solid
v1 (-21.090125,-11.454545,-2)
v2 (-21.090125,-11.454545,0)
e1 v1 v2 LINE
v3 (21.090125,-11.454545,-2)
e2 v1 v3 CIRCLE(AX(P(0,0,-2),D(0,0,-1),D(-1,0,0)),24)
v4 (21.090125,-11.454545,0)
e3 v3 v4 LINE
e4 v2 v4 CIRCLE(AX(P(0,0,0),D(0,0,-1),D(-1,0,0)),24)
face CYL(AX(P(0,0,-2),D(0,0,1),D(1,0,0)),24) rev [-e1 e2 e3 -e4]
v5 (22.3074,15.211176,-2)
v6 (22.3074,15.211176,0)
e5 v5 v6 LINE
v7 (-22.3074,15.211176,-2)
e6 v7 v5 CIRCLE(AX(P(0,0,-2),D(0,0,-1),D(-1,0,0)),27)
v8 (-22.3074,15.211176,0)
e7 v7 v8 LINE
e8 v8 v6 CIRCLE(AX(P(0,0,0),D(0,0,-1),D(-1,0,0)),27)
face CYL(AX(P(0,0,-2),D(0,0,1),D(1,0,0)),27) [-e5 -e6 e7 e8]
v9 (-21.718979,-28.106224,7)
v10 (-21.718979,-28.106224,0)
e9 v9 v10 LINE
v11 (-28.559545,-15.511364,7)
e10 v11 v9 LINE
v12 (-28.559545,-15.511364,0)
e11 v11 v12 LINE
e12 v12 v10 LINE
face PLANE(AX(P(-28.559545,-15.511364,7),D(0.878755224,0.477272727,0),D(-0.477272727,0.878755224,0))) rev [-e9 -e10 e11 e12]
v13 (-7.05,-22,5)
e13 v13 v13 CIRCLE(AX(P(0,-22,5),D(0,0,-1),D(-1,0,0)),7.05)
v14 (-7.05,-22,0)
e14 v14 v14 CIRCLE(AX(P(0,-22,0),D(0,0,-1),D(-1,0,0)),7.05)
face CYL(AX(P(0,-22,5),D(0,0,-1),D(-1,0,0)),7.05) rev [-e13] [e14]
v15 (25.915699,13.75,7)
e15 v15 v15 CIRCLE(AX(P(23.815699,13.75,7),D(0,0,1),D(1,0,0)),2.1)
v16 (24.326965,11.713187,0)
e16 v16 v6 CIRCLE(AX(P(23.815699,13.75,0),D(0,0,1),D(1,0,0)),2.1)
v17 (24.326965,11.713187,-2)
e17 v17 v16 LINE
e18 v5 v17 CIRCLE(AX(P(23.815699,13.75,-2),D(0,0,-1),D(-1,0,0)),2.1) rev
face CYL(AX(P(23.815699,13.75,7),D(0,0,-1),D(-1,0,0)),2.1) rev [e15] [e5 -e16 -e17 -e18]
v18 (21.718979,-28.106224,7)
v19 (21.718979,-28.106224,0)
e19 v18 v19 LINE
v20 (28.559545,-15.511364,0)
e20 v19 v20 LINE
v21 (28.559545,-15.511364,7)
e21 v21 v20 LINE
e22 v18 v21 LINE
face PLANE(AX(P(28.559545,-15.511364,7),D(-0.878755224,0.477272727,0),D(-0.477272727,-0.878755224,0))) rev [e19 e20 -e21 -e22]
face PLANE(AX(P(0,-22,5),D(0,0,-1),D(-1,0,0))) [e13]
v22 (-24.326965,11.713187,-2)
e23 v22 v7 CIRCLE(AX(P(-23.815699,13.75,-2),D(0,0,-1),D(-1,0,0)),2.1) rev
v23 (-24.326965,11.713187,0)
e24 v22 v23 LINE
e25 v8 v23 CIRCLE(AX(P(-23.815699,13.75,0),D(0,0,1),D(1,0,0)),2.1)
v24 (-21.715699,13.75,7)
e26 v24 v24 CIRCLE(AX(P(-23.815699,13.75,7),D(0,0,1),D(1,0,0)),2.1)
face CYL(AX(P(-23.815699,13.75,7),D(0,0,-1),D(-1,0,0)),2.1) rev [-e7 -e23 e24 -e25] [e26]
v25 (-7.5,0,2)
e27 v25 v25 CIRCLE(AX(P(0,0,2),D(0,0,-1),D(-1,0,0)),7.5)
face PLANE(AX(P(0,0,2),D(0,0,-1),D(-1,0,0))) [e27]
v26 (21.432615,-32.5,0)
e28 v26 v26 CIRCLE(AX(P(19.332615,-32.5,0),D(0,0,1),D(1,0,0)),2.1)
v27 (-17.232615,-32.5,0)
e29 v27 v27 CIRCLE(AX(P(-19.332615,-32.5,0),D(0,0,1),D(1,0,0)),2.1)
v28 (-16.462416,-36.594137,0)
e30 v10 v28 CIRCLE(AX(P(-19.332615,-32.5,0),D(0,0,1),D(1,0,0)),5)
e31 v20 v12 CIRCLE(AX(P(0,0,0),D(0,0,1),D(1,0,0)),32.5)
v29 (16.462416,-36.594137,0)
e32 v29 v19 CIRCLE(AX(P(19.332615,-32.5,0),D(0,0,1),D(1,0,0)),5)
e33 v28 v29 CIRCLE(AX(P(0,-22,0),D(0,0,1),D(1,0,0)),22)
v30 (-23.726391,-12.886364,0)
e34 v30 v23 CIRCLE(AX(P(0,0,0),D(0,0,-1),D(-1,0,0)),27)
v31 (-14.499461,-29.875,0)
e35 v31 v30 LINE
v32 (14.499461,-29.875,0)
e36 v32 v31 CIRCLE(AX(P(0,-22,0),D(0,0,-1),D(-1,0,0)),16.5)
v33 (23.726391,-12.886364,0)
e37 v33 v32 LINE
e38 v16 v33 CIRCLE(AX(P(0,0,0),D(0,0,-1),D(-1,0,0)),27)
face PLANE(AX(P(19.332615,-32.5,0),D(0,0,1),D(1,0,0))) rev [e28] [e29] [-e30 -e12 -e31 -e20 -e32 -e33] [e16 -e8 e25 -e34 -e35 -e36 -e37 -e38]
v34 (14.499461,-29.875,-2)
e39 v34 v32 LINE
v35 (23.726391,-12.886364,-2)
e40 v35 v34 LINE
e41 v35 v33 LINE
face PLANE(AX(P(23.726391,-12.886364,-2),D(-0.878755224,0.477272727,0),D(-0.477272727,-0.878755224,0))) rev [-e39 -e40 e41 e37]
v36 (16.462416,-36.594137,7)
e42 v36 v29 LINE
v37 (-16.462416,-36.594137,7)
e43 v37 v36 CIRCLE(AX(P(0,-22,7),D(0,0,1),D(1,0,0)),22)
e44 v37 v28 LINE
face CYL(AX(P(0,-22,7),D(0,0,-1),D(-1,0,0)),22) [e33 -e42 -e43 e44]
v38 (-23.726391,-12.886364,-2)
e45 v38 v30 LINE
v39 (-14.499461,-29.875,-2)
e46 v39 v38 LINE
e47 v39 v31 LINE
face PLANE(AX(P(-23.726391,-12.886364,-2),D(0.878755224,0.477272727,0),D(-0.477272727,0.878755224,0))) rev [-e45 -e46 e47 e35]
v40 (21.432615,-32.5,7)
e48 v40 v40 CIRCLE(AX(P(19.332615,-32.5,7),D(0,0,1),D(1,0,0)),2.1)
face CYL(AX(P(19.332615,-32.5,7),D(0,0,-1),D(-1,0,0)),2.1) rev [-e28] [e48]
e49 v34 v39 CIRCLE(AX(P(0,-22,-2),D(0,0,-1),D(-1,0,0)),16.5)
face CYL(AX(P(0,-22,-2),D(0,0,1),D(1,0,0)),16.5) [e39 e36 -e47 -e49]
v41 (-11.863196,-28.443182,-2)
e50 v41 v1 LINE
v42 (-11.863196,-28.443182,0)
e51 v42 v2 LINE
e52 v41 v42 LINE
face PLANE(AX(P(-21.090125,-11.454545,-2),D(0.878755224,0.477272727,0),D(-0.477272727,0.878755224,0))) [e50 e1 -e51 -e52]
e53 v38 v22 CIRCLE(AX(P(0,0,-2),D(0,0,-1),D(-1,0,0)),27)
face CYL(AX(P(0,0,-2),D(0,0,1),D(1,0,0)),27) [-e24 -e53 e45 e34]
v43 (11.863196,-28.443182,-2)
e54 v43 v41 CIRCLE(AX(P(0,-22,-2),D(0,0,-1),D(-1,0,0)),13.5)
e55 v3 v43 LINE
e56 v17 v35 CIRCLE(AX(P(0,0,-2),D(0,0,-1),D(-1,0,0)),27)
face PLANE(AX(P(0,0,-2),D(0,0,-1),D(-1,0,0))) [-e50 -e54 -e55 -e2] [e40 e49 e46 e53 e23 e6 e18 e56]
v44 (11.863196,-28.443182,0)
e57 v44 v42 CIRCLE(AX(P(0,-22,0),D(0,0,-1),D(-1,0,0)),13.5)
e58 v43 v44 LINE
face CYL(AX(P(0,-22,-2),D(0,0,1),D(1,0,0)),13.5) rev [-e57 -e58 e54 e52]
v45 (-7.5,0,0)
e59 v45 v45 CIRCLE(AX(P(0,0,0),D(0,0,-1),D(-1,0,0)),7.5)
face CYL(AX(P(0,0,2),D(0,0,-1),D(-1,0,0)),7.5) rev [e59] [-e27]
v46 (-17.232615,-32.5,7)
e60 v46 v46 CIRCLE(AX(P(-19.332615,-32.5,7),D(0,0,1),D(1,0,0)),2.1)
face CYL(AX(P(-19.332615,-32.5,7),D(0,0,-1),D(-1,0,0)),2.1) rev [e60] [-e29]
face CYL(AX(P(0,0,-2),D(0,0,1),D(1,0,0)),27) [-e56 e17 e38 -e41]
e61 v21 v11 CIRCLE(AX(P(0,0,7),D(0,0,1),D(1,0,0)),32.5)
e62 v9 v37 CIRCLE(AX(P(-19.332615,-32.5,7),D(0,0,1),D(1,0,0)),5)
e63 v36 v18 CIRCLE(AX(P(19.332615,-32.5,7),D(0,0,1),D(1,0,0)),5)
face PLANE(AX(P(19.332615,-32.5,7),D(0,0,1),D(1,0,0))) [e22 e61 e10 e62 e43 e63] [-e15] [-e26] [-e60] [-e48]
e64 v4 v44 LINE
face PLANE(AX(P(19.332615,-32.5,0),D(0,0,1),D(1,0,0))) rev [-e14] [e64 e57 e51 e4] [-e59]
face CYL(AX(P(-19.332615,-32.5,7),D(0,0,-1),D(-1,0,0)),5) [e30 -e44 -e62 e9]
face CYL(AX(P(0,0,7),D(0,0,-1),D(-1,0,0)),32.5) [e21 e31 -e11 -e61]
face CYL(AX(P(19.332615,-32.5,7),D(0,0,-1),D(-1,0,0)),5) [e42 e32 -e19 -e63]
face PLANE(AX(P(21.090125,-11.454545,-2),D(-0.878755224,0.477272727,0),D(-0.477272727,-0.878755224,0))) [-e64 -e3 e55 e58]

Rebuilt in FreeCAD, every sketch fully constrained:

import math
import FreeCAD as App
import Part
import Sketcher
from FreeCAD import Vector

doc = App.newDocument("Part")
params = doc.addObject("Spreadsheet::Sheet", "Params")
for row, (alias, value) in enumerate([
    ("sketch1_radius", "5 mm"),
    ("sketch1_radius2", "22 mm"),
    ("sketch1_diameter", "4.2 mm"),
    ("sketch1_radius3", "32.5 mm"),
    ("pad1_length", "7 mm"),
    ("sketch2_radius", "27 mm"),
    ("sketch2_radius2", "24 mm"),
    ("sketch2_radius3", "16.5 mm"),
    ("sketch2_radius4", "2.1 mm"),
    ("pad2_length", "2 mm"),
    ("sketch3_diameter", "14.1 mm"),
    ("pocket1_length", "5 mm"),
    ("sketch4_diameter", "15 mm"),
    ("pocket2_length", "2 mm"),
], start=1):
    params.set(f"A{row}", alias)
    params.set(f"B{row}", "=" + value)
    params.setAlias(f"B{row}", alias)

body = doc.addObject("PartDesign::Body", "Body")

sketch1 = body.newObject("Sketcher::SketchObject", "Sketch")
sketch1.AttachmentSupport = (doc.getObject("XY_Plane"), [""])
sketch1.MapMode = "FlatFace"
sketch1.addGeometry([
    Part.LineSegment(Vector(-28.6, -15.5, 0), Vector(-21.7, -28.1, 0)),
    Part.ArcOfCircle(Part.Circle(Vector(-19.3, -32.5, 0), Vector(0, 0, 1), 5), math.radians(119), math.radians(305)),
    Part.ArcOfCircle(Part.Circle(Vector(0, -22, 0), Vector(0, 0, 1), 22), math.radians(-138), math.radians(-42)),
    Part.ArcOfCircle(Part.Circle(Vector(19.3, -32.5, 0), Vector(0, 0, 1), 5), math.radians(-125), math.radians(61)),
    Part.LineSegment(Vector(21.7, -28.1, 0), Vector(28.6, -15.5, 0)),
    Part.ArcOfCircle(Part.Circle(Vector(0, 0, 0), Vector(0, 0, 1), 32.5), math.radians(-29), math.radians(209)),
    Part.Circle(Vector(-19.3, -32.5, 0), Vector(0, 0, 1), 2.1),
    Part.Circle(Vector(19.3, -32.5, 0), Vector(0, 0, 1), 2.1),
    Part.Circle(Vector(-23.8, 13.8, 0), Vector(0, 0, 1), 2.1),
    Part.Circle(Vector(23.8, 13.8, 0), Vector(0, 0, 1), 2.1),
], False)
sketch1.addConstraint([
    Sketcher.Constraint("Coincident", 0, 2, 1, 1),
    Sketcher.Constraint("Coincident", 1, 2, 2, 1),
    Sketcher.Constraint("Coincident", 2, 2, 3, 1),
    Sketcher.Constraint("Coincident", 3, 2, 4, 1),
    Sketcher.Constraint("Tangent", 4, 2, 5, 1),
    Sketcher.Constraint("Tangent", 5, 2, 0, 1),
    Sketcher.Constraint("Coincident", 5, 3, -1, 1),
    Sketcher.Constraint("Coincident", 6, 3, 1, 3),
    Sketcher.Constraint("Coincident", 7, 3, 3, 3),
    Sketcher.Constraint("Equal", 1, 3),
    Sketcher.Constraint("Equal", 6, 7),
    Sketcher.Constraint("Equal", 7, 8),
    Sketcher.Constraint("Equal", 8, 9),
    Sketcher.Constraint("Symmetric", 1, 3, 3, 3, -2),
    Sketcher.Constraint("Symmetric", 8, 3, 9, 3, -2),
    Sketcher.Constraint("PointOnObject", 2, 3, -2),
    Sketcher.Constraint("Horizontal", 0, 2, 3, 2),
    Sketcher.Constraint("Radius", 1, 5.0),
    Sketcher.Constraint("Radius", 2, 22.0),
    Sketcher.Constraint("Diameter", 6, 4.2),
    Sketcher.Constraint("Radius", 5, 32.5),
    Sketcher.Constraint("DistanceY", 2, 3, -1, 1, 22.0),
    Sketcher.Constraint("DistanceY", 1, 3, -1, 1, 32.5),
    Sketcher.Constraint("DistanceY", -1, 1, 8, 3, 13.75),
    Sketcher.Constraint("DistanceX", 8, 3, -1, 1, 23.815699),
    Sketcher.Constraint("DistanceX", 1, 3, 1, 2, 2.870198),
    Sketcher.Constraint("DistanceX", 0, 2, -1, 1, 21.718979),
])
sketch1.setExpression("Constraints[17]", "Params.sketch1_radius")
sketch1.setExpression("Constraints[18]", "Params.sketch1_radius2")
sketch1.setExpression("Constraints[19]", "Params.sketch1_diameter")
sketch1.setExpression("Constraints[20]", "Params.sketch1_radius3")
pad1 = body.newObject("PartDesign::Pad", "Pad")
pad1.Profile = sketch1
pad1.setExpression("Length", "Params.pad1_length")

sketch2 = body.newObject("Sketcher::SketchObject", "Sketch001")
sketch2.AttachmentSupport = (doc.getObject("XY_Plane"), [""])
sketch2.MapMode = "FlatFace"
sketch2.AttachmentOffset = App.Placement(Vector(0, 0, -2), App.Rotation())
sketch2.addGeometry([
    Part.LineSegment(Vector(23.7, -12.9, 0), Vector(14.5, -29.9, 0)),
    Part.ArcOfCircle(Part.Circle(Vector(0, -22, 0), Vector(0, 0, 1), 16.5), math.radians(-151), math.radians(-29)),
    Part.LineSegment(Vector(-14.5, -29.9, 0), Vector(-23.7, -12.9, 0)),
    Part.ArcOfCircle(Part.Circle(Vector(0, 0, 0), Vector(0, 0, 1), 27), math.radians(154), math.radians(209)),
    Part.ArcOfCircle(Part.Circle(Vector(-23.8, 13.8, 0), Vector(0, 0, 1), 2.1), math.radians(-104), math.radians(44)),
    Part.ArcOfCircle(Part.Circle(Vector(0, 0, 0), Vector(0, 0, 1), 27), math.radians(34), math.radians(146)),
    Part.ArcOfCircle(Part.Circle(Vector(23.8, 13.8, 0), Vector(0, 0, 1), 2.1), math.radians(136), math.radians(284)),
    Part.ArcOfCircle(Part.Circle(Vector(0, 0, 0), Vector(0, 0, 1), 27), math.radians(-29), math.radians(26)),
    Part.LineSegment(Vector(11.9, -28.4, 0), Vector(21.1, -11.5, 0)),
    Part.ArcOfCircle(Part.Circle(Vector(0, 0, 0), Vector(0, 0, 1), 24), math.radians(-29), math.radians(209)),
    Part.LineSegment(Vector(-21.1, -11.5, 0), Vector(-11.9, -28.4, 0)),
    Part.ArcOfCircle(Part.Circle(Vector(0, -22, 0), Vector(0, 0, 1), 13.5), math.radians(-151), math.radians(-29)),
], False)
sketch2.addConstraint([
    Sketcher.Constraint("Tangent", 0, 2, 1, 2),
    Sketcher.Constraint("Tangent", 1, 1, 2, 1),
    Sketcher.Constraint("Tangent", 2, 2, 3, 2),
    Sketcher.Constraint("Coincident", 3, 1, 4, 1),
    Sketcher.Constraint("Coincident", 4, 2, 5, 2),
    Sketcher.Constraint("Coincident", 5, 1, 6, 1),
    Sketcher.Constraint("Coincident", 6, 2, 7, 2),
    Sketcher.Constraint("Tangent", 7, 1, 0, 1),
    Sketcher.Constraint("Tangent", 8, 2, 9, 1),
    Sketcher.Constraint("Tangent", 9, 2, 10, 1),
    Sketcher.Constraint("Tangent", 10, 2, 11, 1),
    Sketcher.Constraint("Tangent", 11, 2, 8, 1),
    Sketcher.Constraint("Coincident", 3, 3, -1, 1),
    Sketcher.Constraint("Coincident", 5, 3, -1, 1),
    Sketcher.Constraint("Coincident", 7, 3, -1, 1),
    Sketcher.Constraint("Coincident", 9, 3, -1, 1),
    Sketcher.Constraint("Coincident", 11, 3, 1, 3),
    Sketcher.Constraint("Equal", 3, 5),
    Sketcher.Constraint("Equal", 4, 6),
    Sketcher.Constraint("Equal", 5, 7),
    Sketcher.Constraint("Symmetric", 4, 3, 6, 3, -2),
    Sketcher.Constraint("PointOnObject", 1, 3, -2),
    Sketcher.Constraint("Parallel", 0, 8),
    Sketcher.Constraint("Radius", 3, 27.0),
    Sketcher.Constraint("Radius", 9, 24.0),
    Sketcher.Constraint("Radius", 1, 16.5),
    Sketcher.Constraint("Radius", 4, 2.1),
    Sketcher.Constraint("DistanceY", 1, 3, -1, 1, 22.0),
    Sketcher.Constraint("DistanceY", -1, 1, 4, 3, 13.75),
    Sketcher.Constraint("DistanceX", 4, 3, -1, 1, 23.815699),
])
sketch2.setExpression("Constraints[23]", "Params.sketch2_radius")
sketch2.setExpression("Constraints[24]", "Params.sketch2_radius2")
sketch2.setExpression("Constraints[25]", "Params.sketch2_radius3")
sketch2.setExpression("Constraints[26]", "Params.sketch2_radius4")
pad2 = body.newObject("PartDesign::Pad", "Pad001")
pad2.Profile = sketch2
pad2.setExpression("Length", "Params.pad2_length")

sketch3 = body.newObject("Sketcher::SketchObject", "Sketch002")
sketch3.AttachmentSupport = (doc.getObject("XY_Plane"), [""])
sketch3.MapMode = "FlatFace"
sketch3.addGeometry(Part.Circle(Vector(0, -22, 0), Vector(0, 0, 1), 7), False)
sketch3.addConstraint([
    Sketcher.Constraint("PointOnObject", 0, 3, -2),
    Sketcher.Constraint("Diameter", 0, 14.1),
    Sketcher.Constraint("DistanceY", 0, 3, -1, 1, 22.0),
])
sketch3.setExpression("Constraints[1]", "Params.sketch3_diameter")
pocket1 = body.newObject("PartDesign::Pocket", "Pocket")
pocket1.Profile = sketch3
pocket1.setExpression("Length", "Params.pocket1_length")
pocket1.Reversed = True

sketch4 = body.newObject("Sketcher::SketchObject", "Sketch003")
sketch4.AttachmentSupport = (doc.getObject("XY_Plane"), [""])
sketch4.MapMode = "FlatFace"
sketch4.addGeometry(Part.Circle(Vector(0, 0, 0), Vector(0, 0, 1), 8), False)
sketch4.addConstraint([
    Sketcher.Constraint("Coincident", 0, 3, -1, 1),
    Sketcher.Constraint("Diameter", 0, 15.0),
])
sketch4.setExpression("Constraints[1]", "Params.sketch4_diameter")
pocket2 = body.newObject("PartDesign::Pocket", "Pocket001")
pocket2.Profile = sketch4
pocket2.setExpression("Length", "Params.pocket2_length")
pocket2.Reversed = True

doc.recompute()
